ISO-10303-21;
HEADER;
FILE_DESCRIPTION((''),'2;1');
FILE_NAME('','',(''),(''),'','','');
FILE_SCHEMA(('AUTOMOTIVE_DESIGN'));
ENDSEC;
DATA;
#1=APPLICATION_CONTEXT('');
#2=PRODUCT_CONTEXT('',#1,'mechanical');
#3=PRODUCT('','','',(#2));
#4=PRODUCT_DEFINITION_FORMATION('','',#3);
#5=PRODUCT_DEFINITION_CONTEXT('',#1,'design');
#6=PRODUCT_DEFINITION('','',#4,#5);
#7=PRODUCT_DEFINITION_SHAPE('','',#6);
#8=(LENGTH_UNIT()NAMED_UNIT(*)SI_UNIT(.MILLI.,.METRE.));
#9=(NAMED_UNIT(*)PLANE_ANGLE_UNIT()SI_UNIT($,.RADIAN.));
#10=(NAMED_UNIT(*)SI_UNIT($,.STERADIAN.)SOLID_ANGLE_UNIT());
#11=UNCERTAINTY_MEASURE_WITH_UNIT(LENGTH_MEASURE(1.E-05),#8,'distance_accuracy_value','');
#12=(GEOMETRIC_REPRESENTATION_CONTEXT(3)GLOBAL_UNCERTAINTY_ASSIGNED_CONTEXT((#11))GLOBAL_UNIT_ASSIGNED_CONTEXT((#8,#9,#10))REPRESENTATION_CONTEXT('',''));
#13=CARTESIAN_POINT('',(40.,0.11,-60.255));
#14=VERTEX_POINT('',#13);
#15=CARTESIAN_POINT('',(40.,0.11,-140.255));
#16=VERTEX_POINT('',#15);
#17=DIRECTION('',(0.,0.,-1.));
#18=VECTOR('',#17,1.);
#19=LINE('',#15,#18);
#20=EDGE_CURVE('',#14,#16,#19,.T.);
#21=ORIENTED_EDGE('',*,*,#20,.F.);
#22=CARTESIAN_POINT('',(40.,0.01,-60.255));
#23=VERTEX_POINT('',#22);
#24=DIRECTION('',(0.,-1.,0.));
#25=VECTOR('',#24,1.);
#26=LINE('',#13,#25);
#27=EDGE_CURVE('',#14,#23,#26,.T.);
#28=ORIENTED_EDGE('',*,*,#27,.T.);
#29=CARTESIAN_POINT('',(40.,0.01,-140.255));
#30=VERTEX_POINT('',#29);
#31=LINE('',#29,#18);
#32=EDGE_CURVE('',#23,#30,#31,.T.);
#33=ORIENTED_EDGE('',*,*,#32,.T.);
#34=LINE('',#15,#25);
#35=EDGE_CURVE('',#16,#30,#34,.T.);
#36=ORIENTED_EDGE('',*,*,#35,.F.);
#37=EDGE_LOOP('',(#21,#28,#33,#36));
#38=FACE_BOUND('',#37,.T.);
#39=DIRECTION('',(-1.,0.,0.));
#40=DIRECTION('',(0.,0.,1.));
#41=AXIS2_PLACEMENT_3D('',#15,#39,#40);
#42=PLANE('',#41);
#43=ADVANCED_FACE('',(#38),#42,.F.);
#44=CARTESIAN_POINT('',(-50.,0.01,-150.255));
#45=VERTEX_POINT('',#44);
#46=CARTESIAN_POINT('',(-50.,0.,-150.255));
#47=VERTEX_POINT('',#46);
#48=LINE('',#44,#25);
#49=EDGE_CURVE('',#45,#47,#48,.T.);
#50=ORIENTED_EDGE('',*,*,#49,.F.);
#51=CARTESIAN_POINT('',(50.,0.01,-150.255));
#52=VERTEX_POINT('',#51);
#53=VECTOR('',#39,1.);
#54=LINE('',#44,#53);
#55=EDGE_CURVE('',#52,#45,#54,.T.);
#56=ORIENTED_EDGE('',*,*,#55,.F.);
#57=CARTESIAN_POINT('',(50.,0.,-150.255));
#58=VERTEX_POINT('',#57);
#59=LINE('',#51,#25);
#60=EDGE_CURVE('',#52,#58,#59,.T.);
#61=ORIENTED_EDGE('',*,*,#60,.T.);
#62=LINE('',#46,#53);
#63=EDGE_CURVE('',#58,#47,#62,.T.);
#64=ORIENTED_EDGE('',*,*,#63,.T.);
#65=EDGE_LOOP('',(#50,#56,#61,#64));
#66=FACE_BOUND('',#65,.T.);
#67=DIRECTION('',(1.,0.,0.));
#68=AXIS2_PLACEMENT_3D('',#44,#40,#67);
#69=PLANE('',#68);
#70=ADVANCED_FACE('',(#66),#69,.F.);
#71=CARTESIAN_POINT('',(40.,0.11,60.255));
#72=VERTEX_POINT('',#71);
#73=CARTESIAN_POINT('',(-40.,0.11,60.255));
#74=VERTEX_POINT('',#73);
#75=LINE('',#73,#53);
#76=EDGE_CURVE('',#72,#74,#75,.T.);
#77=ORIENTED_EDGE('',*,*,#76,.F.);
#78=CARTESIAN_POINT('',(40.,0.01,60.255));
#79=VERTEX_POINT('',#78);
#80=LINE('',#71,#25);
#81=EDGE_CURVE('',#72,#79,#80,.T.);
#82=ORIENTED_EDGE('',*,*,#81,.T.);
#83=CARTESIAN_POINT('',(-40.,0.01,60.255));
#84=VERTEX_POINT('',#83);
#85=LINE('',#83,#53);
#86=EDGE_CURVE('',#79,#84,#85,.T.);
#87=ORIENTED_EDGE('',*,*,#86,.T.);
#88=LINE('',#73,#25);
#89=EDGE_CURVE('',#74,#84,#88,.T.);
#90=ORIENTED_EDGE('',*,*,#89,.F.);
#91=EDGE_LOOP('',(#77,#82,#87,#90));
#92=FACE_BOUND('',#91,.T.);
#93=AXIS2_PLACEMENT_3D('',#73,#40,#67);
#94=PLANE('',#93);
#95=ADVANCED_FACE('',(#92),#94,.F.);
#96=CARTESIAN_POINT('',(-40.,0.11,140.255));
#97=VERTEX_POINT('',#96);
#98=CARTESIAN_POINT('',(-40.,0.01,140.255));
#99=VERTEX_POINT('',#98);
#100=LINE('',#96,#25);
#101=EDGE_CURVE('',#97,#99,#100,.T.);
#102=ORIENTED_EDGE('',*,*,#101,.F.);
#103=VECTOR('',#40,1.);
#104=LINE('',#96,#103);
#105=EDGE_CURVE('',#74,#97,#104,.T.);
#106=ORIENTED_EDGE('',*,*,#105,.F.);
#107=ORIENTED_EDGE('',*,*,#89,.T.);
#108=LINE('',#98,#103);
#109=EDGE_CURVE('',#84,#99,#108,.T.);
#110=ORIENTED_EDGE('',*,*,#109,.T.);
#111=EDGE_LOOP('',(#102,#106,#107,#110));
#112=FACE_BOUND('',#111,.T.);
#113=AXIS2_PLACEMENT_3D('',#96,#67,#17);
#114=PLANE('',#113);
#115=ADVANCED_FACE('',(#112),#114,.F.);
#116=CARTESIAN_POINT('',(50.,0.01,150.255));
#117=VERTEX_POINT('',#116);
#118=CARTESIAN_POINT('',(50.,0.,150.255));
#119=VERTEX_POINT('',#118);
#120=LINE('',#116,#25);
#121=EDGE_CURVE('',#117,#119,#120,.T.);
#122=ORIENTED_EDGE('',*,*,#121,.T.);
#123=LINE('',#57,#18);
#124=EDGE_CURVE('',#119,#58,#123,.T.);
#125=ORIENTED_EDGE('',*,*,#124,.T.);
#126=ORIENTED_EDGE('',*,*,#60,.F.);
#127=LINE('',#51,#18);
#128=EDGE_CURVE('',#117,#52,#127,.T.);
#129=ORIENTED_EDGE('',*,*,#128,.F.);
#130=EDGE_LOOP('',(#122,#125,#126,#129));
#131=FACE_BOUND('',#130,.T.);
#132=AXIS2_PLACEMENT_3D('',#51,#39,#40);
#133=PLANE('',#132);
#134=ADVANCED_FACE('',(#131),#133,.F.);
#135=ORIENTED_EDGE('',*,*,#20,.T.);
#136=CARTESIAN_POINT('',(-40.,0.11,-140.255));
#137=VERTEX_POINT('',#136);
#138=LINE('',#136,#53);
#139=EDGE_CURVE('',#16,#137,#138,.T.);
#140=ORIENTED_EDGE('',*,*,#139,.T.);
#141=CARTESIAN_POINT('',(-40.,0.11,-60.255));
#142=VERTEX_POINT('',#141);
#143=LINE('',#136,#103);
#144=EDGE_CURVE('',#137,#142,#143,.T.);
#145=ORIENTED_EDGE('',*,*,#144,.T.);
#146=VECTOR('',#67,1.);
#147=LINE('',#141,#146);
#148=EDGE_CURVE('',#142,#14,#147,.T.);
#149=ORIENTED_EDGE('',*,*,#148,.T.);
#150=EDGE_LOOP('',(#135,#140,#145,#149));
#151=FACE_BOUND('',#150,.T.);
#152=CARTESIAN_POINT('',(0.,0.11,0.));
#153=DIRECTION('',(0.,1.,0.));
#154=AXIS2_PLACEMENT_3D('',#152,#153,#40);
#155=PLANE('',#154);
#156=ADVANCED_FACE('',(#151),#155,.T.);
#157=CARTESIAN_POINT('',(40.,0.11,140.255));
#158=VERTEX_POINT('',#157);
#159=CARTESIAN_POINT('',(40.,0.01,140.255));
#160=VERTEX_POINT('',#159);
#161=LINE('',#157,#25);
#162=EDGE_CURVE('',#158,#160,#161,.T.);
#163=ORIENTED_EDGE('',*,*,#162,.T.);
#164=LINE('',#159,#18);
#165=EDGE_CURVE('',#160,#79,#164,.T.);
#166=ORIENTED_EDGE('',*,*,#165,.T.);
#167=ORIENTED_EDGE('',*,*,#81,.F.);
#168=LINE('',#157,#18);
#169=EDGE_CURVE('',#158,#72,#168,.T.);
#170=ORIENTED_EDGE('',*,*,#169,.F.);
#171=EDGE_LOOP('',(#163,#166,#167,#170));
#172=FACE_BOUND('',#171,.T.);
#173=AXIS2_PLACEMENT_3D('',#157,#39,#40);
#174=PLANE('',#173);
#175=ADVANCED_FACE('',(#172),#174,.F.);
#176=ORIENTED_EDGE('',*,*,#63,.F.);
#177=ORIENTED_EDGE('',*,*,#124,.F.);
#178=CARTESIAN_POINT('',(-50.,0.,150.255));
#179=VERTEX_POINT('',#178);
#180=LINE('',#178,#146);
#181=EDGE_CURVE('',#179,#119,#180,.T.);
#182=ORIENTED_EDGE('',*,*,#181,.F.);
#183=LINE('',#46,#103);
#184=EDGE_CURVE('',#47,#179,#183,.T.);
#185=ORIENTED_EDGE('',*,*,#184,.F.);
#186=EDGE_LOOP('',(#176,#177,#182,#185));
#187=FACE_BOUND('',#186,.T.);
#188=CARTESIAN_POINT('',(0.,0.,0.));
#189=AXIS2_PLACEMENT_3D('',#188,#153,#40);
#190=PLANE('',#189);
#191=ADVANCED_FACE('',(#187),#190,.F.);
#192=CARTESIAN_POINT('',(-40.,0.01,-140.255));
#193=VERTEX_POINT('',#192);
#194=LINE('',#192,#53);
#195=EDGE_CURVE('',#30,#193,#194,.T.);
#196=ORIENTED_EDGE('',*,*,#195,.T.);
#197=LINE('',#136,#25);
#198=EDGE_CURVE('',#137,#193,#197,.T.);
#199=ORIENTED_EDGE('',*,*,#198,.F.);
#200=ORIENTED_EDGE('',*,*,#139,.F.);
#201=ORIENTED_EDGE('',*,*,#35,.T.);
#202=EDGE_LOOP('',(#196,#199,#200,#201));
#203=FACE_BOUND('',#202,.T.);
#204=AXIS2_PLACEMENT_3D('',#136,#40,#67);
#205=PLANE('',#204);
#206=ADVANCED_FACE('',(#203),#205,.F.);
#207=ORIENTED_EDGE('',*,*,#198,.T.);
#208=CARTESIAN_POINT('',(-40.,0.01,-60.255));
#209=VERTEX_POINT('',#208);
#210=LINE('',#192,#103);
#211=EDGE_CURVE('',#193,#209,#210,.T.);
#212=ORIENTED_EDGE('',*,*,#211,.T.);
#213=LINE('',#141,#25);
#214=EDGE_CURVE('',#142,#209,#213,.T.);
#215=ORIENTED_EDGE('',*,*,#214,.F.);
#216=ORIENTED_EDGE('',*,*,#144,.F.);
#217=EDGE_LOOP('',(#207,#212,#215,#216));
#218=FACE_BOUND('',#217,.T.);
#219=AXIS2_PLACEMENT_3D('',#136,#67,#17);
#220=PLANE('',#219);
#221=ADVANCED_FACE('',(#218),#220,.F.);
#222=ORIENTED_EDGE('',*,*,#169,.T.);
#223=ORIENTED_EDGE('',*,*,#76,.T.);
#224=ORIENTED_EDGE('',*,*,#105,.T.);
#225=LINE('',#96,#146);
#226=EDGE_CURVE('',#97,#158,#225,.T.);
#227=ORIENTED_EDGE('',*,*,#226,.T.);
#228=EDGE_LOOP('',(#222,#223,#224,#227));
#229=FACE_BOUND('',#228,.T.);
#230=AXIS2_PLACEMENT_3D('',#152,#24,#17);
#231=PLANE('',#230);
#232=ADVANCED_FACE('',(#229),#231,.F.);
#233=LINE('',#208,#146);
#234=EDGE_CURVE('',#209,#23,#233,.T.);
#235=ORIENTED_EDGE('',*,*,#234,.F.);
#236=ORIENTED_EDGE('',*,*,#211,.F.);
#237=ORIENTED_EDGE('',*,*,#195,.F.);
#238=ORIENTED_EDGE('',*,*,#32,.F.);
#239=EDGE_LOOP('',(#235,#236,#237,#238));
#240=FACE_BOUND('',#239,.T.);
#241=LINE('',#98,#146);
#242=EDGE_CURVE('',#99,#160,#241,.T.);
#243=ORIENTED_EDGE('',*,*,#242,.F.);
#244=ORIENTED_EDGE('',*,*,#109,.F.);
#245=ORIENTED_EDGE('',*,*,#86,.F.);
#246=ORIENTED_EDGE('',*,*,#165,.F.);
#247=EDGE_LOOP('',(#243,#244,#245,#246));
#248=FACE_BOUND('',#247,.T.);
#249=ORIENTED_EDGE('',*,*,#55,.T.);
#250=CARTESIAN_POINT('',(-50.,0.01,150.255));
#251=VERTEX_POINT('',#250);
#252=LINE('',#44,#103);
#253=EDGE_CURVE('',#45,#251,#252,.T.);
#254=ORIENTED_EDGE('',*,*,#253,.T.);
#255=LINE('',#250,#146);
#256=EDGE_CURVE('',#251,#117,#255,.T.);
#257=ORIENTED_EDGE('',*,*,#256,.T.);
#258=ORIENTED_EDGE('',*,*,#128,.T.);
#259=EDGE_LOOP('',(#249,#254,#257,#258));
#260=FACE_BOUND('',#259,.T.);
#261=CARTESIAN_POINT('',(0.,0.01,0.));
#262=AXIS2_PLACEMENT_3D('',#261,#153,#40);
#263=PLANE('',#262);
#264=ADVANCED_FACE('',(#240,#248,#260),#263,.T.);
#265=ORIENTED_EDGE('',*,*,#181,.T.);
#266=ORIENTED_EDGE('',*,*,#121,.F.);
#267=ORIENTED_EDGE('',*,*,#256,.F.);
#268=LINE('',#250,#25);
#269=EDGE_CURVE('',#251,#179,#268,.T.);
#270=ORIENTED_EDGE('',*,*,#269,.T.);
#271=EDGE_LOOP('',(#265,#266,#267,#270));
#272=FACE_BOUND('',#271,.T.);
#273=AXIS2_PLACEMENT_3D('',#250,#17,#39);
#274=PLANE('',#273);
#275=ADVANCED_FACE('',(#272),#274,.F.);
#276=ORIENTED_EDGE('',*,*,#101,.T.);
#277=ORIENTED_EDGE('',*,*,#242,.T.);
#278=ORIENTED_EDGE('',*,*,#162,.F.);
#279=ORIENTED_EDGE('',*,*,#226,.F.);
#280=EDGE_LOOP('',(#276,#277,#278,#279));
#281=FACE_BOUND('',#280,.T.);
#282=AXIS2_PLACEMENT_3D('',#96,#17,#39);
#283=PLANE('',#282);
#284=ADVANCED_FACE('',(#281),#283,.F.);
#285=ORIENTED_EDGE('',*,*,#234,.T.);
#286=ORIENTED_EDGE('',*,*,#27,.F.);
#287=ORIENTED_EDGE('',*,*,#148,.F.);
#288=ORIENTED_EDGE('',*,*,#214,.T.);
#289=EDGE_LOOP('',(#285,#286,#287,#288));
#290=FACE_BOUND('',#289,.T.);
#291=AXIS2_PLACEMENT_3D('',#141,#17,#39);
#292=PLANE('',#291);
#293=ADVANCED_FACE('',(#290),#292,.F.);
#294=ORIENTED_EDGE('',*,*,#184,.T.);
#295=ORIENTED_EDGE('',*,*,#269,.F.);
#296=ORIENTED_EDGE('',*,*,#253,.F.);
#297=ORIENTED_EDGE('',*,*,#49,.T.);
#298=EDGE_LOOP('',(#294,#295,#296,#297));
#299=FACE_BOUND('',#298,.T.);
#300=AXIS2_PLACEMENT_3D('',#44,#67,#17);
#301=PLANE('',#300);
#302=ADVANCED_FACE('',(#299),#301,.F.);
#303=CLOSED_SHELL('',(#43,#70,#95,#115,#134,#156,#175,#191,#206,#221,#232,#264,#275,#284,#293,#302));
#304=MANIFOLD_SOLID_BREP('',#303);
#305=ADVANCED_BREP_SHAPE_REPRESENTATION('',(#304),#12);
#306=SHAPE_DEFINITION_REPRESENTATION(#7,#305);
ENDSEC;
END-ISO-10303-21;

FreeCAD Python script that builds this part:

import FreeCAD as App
import Part
import Sketcher


def add_polygon(sketch, points):
    """Adds a closed chain of lines whose ends are joined by coincident constraints."""
    first, n = sketch.GeometryCount, len(points)
    for a, b in zip(points, points[1:] + points[:1]):
        sketch.addGeometry(Part.LineSegment(App.Vector(*a, 0), App.Vector(*b, 0)), False)
    for i in range(n):
        sketch.addConstraint(Sketcher.Constraint("Coincident", first + i, 2, first + (i + 1) % n, 1))

doc = App.newDocument("Part")
body = doc.addObject("PartDesign::Body", "Body")

# Sketch on XZ plane
sketch1 = body.newObject("Sketcher::SketchObject", "Sketch")
sketch1.AttachmentSupport = (doc.getObject("XZ_Plane"), [""])
sketch1.MapMode = "FlatFace"
add_polygon(sketch1, [(-50, -150), (-50, 150), (50, 150), (50, -150)])  # lines 0-3
sketch1.addConstraint(Sketcher.Constraint("Vertical", 0))
sketch1.addConstraint(Sketcher.Constraint("Horizontal", 1))
sketch1.addConstraint(Sketcher.Constraint("Vertical", 2))
sketch1.addConstraint(Sketcher.Constraint("Horizontal", 3))
sketch1.addConstraint(Sketcher.Constraint("Symmetric", 0, 2, 2, 2, -1, 1))
sketch1.addConstraint(Sketcher.Constraint("DistanceX", 1, 1, 1, 2, 100.0))
sketch1.addConstraint(Sketcher.Constraint("DistanceY", 0, 1, 0, 2, 300.51))
pad1 = body.newObject("PartDesign::Pad", "Pad")
pad1.Profile = sketch1
pad1.Length = 0.01
pad1.Reversed = True

# Sketch on XZ plane
sketch2 = body.newObject("Sketcher::SketchObject", "Sketch001")
sketch2.AttachmentSupport = (doc.getObject("XZ_Plane"), [""])
sketch2.MapMode = "FlatFace"
sketch2.AttachmentOffset = App.Placement(App.Vector(0, 0, -0.01), App.Rotation())
add_polygon(sketch2, [(-40, 60), (-40, 140), (40, 140), (40, 60)])  # lines 0-3
add_polygon(sketch2, [(-40, -140), (-40, -60), (40, -60), (40, -140)])  # lines 4-7
sketch2.addConstraint(Sketcher.Constraint("Vertical", 0))
sketch2.addConstraint(Sketcher.Constraint("Horizontal", 1))
sketch2.addConstraint(Sketcher.Constraint("Vertical", 2))
sketch2.addConstraint(Sketcher.Constraint("Horizontal", 3))
sketch2.addConstraint(Sketcher.Constraint("Vertical", 4))
sketch2.addConstraint(Sketcher.Constraint("Horizontal", 5))
sketch2.addConstraint(Sketcher.Constraint("Vertical", 6))
sketch2.addConstraint(Sketcher.Constraint("Horizontal", 7))
sketch2.addConstraint(Sketcher.Constraint("Symmetric", 2, 2, 4, 2, -1, 1))
sketch2.addConstraint(Sketcher.Constraint("Symmetric", 0, 2, 6, 2, -1, 1))
sketch2.addConstraint(Sketcher.Constraint("Vertical", 3, 2, 4, 2))
sketch2.addConstraint(Sketcher.Constraint("Equal", 7, 0))
sketch2.addConstraint(Sketcher.Constraint("DistanceX", 1, 1, 1, 2, 80.0))
sketch2.addConstraint(Sketcher.Constraint("DistanceY", 4, 2, 3, 2, 120.51))
pad2 = body.newObject("PartDesign::Pad", "Pad001")
pad2.Profile = sketch2
pad2.Length = 0.1
pad2.Reversed = True

doc.recompute()
